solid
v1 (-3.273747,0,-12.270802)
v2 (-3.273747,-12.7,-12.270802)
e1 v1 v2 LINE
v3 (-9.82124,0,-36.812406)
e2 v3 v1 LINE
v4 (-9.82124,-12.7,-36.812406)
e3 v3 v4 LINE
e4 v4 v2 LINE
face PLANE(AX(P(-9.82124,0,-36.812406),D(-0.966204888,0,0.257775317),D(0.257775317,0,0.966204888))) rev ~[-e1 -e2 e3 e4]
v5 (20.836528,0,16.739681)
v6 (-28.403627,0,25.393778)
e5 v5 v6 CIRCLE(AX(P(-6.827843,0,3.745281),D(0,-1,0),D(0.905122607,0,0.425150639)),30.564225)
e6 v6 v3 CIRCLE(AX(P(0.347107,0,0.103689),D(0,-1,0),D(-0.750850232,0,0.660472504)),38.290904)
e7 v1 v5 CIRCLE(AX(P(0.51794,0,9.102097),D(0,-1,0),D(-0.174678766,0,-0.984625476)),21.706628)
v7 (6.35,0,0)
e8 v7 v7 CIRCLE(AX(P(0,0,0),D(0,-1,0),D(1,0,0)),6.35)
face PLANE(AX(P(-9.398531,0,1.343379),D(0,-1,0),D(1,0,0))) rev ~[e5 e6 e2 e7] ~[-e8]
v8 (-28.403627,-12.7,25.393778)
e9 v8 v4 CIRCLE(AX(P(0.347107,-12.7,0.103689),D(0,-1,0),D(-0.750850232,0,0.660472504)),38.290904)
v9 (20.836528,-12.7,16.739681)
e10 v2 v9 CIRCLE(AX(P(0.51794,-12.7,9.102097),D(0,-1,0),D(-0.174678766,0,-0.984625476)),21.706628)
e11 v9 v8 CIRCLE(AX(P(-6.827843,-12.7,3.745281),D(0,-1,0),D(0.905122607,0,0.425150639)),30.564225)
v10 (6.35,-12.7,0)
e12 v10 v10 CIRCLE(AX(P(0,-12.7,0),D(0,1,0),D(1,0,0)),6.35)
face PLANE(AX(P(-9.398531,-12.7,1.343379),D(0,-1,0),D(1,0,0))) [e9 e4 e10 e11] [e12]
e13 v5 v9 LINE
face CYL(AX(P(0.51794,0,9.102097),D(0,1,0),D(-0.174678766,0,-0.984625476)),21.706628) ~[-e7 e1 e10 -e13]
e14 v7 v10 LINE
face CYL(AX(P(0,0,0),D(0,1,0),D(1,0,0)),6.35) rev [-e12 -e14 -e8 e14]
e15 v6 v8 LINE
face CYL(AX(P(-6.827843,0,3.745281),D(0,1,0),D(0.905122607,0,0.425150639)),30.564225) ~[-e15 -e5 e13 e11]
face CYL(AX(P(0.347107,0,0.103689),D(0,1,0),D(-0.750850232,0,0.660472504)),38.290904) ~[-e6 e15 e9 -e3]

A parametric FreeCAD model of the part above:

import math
import FreeCAD as App
import Part
import Sketcher
Q = App.Units.Quantity

doc = App.newDocument("Part")
params = doc.addObject("Spreadsheet::Sheet", "Params")
for row, (alias, value) in enumerate([
    ("sketch1_length", "1 in"),
    ("pad1_length", "0.5 in"),
    ("sketch2_diameter", "0.5 in"),
    ("pocket1_length", "1 in"),
], start=1):
    params.set(f"A{row}", alias)
    params.set(f"B{row}", "=" + value)
    params.setAlias(f"B{row}", alias)

body = doc.addObject("PartDesign::Body", "Body")

sketch1 = body.newObject("Sketcher::SketchObject", "Sketch")
sketch1.AttachmentSupport = (doc.getObject("XZ_Plane"), [""])
sketch1.MapMode = "FlatFace"
sketch1.addGeometry([
    Part.ArcOfCircle(Part.Circle(App.Vector(0, 0, 0), App.Vector(0, 0, 1), 38), math.radians(139), math.radians(255)),
    Part.LineSegment(App.Vector(-10, -37, 0), App.Vector(-3, -12, 0)),
    Part.ArcOfCircle(Part.Circle(App.Vector(1, 9, 0), App.Vector(0, 0, 1), 22), math.radians(-100), math.radians(21)),
    Part.ArcOfCircle(Part.Circle(App.Vector(-7, 4, 0), App.Vector(0, 0, 1), 31), math.radians(25), math.radians(135)),
], False)
sketch1.addConstraint([
    Sketcher.Constraint("Coincident", 0, 2, 1, 1),
    Sketcher.Constraint("Coincident", 1, 2, 2, 1),
    Sketcher.Constraint("Coincident", 2, 2, 3, 1),
    Sketcher.Constraint("Coincident", 3, 2, 0, 1),
    Sketcher.Constraint("Distance", 1, Q("1 in")),
    Sketcher.Constraint("Radius", 2, Q("21.706628 mm")),
    Sketcher.Constraint("Radius", 0, Q("38.290904 mm")),
    Sketcher.Constraint("Radius", 3, Q("30.564225 mm")),
    Sketcher.Constraint("DistanceY", 1, 2, 2, 3, Q("21.372899 mm")),
    Sketcher.Constraint("DistanceY", 3, 3, 2, 2, Q("12.9944 mm")),
    Sketcher.Constraint("DistanceY", -1, 1, 0, 3, Q("0.103689 mm")),
    Sketcher.Constraint("DistanceX", -1, 1, 2, 3, Q("0.51794 mm")),
    Sketcher.Constraint("DistanceY", -1, 1, 3, 3, Q("3.745281 mm")),
    Sketcher.Constraint("DistanceX", 0, 2, -1, 1, Q("9.82124 mm")),
    Sketcher.Constraint("DistanceY", -1, 1, 3, 2, Q("25.393778 mm")),
])
sketch1.setExpression("Constraints[4]", "Params.sketch1_length")
pad1 = body.newObject("PartDesign::Pad", "Pad")
pad1.Profile = sketch1
pad1.setExpression("Length", "Params.pad1_length")

sketch2 = body.newObject("Sketcher::SketchObject", "Sketch001")
sketch2.AttachmentSupport = (doc.getObject("XZ_Plane"), [""])
sketch2.MapMode = "FlatFace"
sketch2.addGeometry(Part.Circle(App.Vector(0, 0, 0), App.Vector(0, 0, 1), 6), False)
sketch2.addConstraint([
    Sketcher.Constraint("Coincident", 0, 3, -1, 1),
    Sketcher.Constraint("Diameter", 0, Q("0.5 in")),
])
sketch2.setExpression("Constraints[1]", "Params.sketch2_diameter")
pocket1 = body.newObject("PartDesign::Pocket", "Pocket")
pocket1.Profile = sketch2
pocket1.setExpression("Length", "Params.pocket1_length")
pocket1.Reversed = True

doc.recompute()
